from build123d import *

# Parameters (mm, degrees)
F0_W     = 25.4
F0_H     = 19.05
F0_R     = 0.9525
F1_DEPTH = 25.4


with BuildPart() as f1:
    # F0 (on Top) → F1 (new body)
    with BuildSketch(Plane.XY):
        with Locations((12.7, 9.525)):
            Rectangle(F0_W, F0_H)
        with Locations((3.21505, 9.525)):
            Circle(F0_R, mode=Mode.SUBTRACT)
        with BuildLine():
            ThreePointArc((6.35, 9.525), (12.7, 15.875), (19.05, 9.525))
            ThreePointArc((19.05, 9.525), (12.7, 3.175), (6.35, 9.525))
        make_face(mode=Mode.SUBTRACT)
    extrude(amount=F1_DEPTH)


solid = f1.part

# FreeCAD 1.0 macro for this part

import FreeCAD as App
import Part
import Sketcher
from FreeCAD import Vector
Q = App.Units.Quantity


def add_polygon(sketch, points):
    """Adds a closed chain of lines whose ends are joined by coincident constraints."""
    first, n = sketch.GeometryCount, len(points)
    for a, b in zip(points, points[1:] + points[:1]):
        sketch.addGeometry(Part.LineSegment(App.Vector(*a, 0), App.Vector(*b, 0)), False)
    for i in range(n):
        sketch.addConstraint(Sketcher.Constraint("Coincident", first + i, 2, first + (i + 1) % n, 1))

doc = App.newDocument("Part")
body = doc.addObject("PartDesign::Body", "Body")

sketch1 = body.newObject("Sketcher::SketchObject", "Sketch")
sketch1.AttachmentSupport = (doc.getObject("XY_Plane"), [""])
sketch1.MapMode = "FlatFace"
add_polygon(sketch1, [(0, 19.1), (0, 0), (25.4, 0), (25.4, 19.1)])
sketch1.addGeometry(Part.Circle(Vector(3.2, 9.5, 0), Vector(0, 0, 1), 1), False)
sketch1.addGeometry(Part.Circle(Vector(12.7, 9.5, 0), Vector(0, 0, 1), 6.3), False)
sketch1.addConstraint([
    Sketcher.Constraint("Vertical", 0),
    Sketcher.Constraint("Horizontal", 1),
    Sketcher.Constraint("Vertical", 2),
    Sketcher.Constraint("Horizontal", 3),
    Sketcher.Constraint("Coincident", 0, 2, -1, 1),
    Sketcher.Constraint("Horizontal", 4, 3, 5, 3),
    Sketcher.Constraint("Diameter", 5, Q("0.5 in")),
    Sketcher.Constraint("DistanceX", 1, 1, 1, 2, Q("1 in")),
    Sketcher.Constraint("Diameter", 4, Q("0.075 in")),
    Sketcher.Constraint("DistanceY", 0, 2, 0, 1, Q("0.75 in")),
    Sketcher.Constraint("DistanceX", -1, 1, 5, 3, Q("0.5 in")),
    Sketcher.Constraint("DistanceY", -1, 1, 4, 3, Q("0.375 in")),
    Sketcher.Constraint("DistanceX", -1, 1, 4, 3, Q("3.21505 mm")),
])
pad1 = body.newObject("PartDesign::Pad", "Pad")
pad1.Profile = sketch1
pad1.Length = Q("1 in")

doc.recompute()
